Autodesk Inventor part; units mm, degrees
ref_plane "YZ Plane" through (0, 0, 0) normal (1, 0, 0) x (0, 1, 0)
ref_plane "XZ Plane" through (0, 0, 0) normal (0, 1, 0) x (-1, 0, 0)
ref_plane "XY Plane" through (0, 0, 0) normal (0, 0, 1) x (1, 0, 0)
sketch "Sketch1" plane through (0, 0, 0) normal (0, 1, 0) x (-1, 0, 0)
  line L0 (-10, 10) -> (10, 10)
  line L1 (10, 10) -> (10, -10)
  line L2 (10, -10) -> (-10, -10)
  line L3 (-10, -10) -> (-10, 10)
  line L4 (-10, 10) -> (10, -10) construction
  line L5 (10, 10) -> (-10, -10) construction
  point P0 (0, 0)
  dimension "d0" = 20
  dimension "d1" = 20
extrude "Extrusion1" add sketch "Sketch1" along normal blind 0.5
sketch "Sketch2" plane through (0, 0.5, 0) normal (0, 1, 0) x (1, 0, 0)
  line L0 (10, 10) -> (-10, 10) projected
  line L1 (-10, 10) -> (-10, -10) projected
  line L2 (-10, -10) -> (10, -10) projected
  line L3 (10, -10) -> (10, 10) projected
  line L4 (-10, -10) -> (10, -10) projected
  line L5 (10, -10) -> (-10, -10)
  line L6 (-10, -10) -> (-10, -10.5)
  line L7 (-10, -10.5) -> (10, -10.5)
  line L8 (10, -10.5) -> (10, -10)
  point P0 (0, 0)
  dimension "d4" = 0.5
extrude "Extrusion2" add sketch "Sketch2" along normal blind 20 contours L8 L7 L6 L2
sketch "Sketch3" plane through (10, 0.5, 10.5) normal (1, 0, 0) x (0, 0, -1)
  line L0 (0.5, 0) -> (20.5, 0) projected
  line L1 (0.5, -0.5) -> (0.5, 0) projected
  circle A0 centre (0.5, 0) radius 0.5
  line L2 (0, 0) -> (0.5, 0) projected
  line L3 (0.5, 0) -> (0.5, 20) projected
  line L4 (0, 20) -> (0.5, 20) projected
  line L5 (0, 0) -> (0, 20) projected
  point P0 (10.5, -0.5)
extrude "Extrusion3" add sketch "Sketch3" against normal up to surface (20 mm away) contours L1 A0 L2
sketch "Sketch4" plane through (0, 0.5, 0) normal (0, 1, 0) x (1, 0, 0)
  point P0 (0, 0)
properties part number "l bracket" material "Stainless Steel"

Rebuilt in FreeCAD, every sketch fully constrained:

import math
import FreeCAD as App
import Part
import Sketcher
from FreeCAD import Vector

doc = App.newDocument("Part")
body = doc.addObject("PartDesign::Body", "Body")
body.AllowCompound = True

# Sketch on XZ plane
sketch1 = body.newObject("Sketcher::SketchObject", "Sketch")
sketch1.AttachmentSupport = (doc.getObject("XZ_Plane"), [""])
sketch1.MapMode = "FlatFace"
sketch1.addGeometry([
    Part.LineSegment(Vector(-10, 10, 0), Vector(10, 10, 0)),
    Part.LineSegment(Vector(10, 10, 0), Vector(10, -10, 0)),
    Part.LineSegment(Vector(10, -10, 0), Vector(-10, -10, 0)),
    Part.LineSegment(Vector(-10, -10, 0), Vector(-10, 10, 0)),
], False)
sketch1.addConstraint([
    Sketcher.Constraint("Coincident", 0, 2, 1, 1),
    Sketcher.Constraint("Coincident", 1, 2, 2, 1),
    Sketcher.Constraint("Coincident", 2, 2, 3, 1),
    Sketcher.Constraint("Coincident", 3, 2, 0, 1),
    Sketcher.Constraint("Horizontal", 0),
    Sketcher.Constraint("Vertical", 1),
    Sketcher.Constraint("Horizontal", 2),
    Sketcher.Constraint("Vertical", 3),
    Sketcher.Constraint("Symmetric", 0, 2, 2, 2, -1, 1),
    Sketcher.Constraint("Equal", 2, 1),
    Sketcher.Constraint("DistanceX", 0, 1, 0, 2, 20.0),
])
pad1 = body.newObject("PartDesign::Pad", "Pad")
pad1.Profile = sketch1
pad1.Length = 0.5
pad1.Reversed = True

# Sketch on XZ plane
sketch2 = body.newObject("Sketcher::SketchObject", "Sketch001")
sketch2.AttachmentSupport = (doc.getObject("XZ_Plane"), [""])
sketch2.MapMode = "FlatFace"
sketch2.AttachmentOffset = App.Placement(Vector(0, 0, -0.5), App.Rotation())
sketch2.addGeometry([
    Part.LineSegment(Vector(10, 10.5, 0), Vector(10, 10, 0)),
    Part.LineSegment(Vector(10, 10, 0), Vector(-10, 10, 0)),
    Part.LineSegment(Vector(-10, 10, 0), Vector(-10, 10.5, 0)),
    Part.LineSegment(Vector(-10, 10.5, 0), Vector(10, 10.5, 0)),
], False)
sketch2.addConstraint([
    Sketcher.Constraint("Coincident", 0, 2, 1, 1),
    Sketcher.Constraint("Coincident", 1, 2, 2, 1),
    Sketcher.Constraint("Coincident", 2, 2, 3, 1),
    Sketcher.Constraint("Coincident", 3, 2, 0, 1),
    Sketcher.Constraint("Vertical", 0),
    Sketcher.Constraint("Horizontal", 1),
    Sketcher.Constraint("Vertical", 2),
    Sketcher.Constraint("Horizontal", 3),
    Sketcher.Constraint("DistanceY", 0, 2, 0, 1, 0.5),
    Sketcher.Constraint("DistanceX", 1, 2, 1, 1, 20.0),
    Sketcher.Constraint("DistanceX", -1, 1, 0, 2, 10.0),
    Sketcher.Constraint("DistanceY", -1, 1, 0, 2, 10.0),
])
pad2 = body.newObject("PartDesign::Pad", "Pad001")
pad2.Profile = sketch2
pad2.Length = 20
pad2.Reversed = True

# Sketch on YZ plane
sketch3 = body.newObject("Sketcher::SketchObject", "Sketch002")
sketch3.AttachmentSupport = (doc.getObject("YZ_Plane"), [""])
sketch3.MapMode = "FlatFace"
sketch3.AttachmentOffset = App.Placement(Vector(0, 0, 10), App.Rotation())
sketch3.addGeometry([
    Part.LineSegment(Vector(0, 10, 0), Vector(0.5, 10, 0)),
    Part.LineSegment(Vector(0.5, 10, 0), Vector(0.5, 10.5, 0)),
    Part.ArcOfCircle(Part.Circle(Vector(0.5, 10, 0), Vector(0, 0, 1), 0.5), math.radians(90), math.radians(180)),
], False)
sketch3.addConstraint([
    Sketcher.Constraint("Coincident", 0, 2, 1, 1),
    Sketcher.Constraint("Coincident", 1, 2, 2, 1),
    Sketcher.Constraint("Coincident", 2, 2, 0, 1),
    Sketcher.Constraint("Horizontal", 0),
    Sketcher.Constraint("Vertical", 1),
    Sketcher.Constraint("Coincident", 0, 2, 2, 3),
    Sketcher.Constraint("PointOnObject", 2, 2, -2),
    Sketcher.Constraint("Radius", 2, 0.5),
    Sketcher.Constraint("DistanceY", -1, 1, 2, 3, 10.0),
])
pad3 = body.newObject("PartDesign::Pad", "Pad002")
pad3.Profile = sketch3
pad3.Length = 20
pad3.Reversed = True

doc.recompute()
